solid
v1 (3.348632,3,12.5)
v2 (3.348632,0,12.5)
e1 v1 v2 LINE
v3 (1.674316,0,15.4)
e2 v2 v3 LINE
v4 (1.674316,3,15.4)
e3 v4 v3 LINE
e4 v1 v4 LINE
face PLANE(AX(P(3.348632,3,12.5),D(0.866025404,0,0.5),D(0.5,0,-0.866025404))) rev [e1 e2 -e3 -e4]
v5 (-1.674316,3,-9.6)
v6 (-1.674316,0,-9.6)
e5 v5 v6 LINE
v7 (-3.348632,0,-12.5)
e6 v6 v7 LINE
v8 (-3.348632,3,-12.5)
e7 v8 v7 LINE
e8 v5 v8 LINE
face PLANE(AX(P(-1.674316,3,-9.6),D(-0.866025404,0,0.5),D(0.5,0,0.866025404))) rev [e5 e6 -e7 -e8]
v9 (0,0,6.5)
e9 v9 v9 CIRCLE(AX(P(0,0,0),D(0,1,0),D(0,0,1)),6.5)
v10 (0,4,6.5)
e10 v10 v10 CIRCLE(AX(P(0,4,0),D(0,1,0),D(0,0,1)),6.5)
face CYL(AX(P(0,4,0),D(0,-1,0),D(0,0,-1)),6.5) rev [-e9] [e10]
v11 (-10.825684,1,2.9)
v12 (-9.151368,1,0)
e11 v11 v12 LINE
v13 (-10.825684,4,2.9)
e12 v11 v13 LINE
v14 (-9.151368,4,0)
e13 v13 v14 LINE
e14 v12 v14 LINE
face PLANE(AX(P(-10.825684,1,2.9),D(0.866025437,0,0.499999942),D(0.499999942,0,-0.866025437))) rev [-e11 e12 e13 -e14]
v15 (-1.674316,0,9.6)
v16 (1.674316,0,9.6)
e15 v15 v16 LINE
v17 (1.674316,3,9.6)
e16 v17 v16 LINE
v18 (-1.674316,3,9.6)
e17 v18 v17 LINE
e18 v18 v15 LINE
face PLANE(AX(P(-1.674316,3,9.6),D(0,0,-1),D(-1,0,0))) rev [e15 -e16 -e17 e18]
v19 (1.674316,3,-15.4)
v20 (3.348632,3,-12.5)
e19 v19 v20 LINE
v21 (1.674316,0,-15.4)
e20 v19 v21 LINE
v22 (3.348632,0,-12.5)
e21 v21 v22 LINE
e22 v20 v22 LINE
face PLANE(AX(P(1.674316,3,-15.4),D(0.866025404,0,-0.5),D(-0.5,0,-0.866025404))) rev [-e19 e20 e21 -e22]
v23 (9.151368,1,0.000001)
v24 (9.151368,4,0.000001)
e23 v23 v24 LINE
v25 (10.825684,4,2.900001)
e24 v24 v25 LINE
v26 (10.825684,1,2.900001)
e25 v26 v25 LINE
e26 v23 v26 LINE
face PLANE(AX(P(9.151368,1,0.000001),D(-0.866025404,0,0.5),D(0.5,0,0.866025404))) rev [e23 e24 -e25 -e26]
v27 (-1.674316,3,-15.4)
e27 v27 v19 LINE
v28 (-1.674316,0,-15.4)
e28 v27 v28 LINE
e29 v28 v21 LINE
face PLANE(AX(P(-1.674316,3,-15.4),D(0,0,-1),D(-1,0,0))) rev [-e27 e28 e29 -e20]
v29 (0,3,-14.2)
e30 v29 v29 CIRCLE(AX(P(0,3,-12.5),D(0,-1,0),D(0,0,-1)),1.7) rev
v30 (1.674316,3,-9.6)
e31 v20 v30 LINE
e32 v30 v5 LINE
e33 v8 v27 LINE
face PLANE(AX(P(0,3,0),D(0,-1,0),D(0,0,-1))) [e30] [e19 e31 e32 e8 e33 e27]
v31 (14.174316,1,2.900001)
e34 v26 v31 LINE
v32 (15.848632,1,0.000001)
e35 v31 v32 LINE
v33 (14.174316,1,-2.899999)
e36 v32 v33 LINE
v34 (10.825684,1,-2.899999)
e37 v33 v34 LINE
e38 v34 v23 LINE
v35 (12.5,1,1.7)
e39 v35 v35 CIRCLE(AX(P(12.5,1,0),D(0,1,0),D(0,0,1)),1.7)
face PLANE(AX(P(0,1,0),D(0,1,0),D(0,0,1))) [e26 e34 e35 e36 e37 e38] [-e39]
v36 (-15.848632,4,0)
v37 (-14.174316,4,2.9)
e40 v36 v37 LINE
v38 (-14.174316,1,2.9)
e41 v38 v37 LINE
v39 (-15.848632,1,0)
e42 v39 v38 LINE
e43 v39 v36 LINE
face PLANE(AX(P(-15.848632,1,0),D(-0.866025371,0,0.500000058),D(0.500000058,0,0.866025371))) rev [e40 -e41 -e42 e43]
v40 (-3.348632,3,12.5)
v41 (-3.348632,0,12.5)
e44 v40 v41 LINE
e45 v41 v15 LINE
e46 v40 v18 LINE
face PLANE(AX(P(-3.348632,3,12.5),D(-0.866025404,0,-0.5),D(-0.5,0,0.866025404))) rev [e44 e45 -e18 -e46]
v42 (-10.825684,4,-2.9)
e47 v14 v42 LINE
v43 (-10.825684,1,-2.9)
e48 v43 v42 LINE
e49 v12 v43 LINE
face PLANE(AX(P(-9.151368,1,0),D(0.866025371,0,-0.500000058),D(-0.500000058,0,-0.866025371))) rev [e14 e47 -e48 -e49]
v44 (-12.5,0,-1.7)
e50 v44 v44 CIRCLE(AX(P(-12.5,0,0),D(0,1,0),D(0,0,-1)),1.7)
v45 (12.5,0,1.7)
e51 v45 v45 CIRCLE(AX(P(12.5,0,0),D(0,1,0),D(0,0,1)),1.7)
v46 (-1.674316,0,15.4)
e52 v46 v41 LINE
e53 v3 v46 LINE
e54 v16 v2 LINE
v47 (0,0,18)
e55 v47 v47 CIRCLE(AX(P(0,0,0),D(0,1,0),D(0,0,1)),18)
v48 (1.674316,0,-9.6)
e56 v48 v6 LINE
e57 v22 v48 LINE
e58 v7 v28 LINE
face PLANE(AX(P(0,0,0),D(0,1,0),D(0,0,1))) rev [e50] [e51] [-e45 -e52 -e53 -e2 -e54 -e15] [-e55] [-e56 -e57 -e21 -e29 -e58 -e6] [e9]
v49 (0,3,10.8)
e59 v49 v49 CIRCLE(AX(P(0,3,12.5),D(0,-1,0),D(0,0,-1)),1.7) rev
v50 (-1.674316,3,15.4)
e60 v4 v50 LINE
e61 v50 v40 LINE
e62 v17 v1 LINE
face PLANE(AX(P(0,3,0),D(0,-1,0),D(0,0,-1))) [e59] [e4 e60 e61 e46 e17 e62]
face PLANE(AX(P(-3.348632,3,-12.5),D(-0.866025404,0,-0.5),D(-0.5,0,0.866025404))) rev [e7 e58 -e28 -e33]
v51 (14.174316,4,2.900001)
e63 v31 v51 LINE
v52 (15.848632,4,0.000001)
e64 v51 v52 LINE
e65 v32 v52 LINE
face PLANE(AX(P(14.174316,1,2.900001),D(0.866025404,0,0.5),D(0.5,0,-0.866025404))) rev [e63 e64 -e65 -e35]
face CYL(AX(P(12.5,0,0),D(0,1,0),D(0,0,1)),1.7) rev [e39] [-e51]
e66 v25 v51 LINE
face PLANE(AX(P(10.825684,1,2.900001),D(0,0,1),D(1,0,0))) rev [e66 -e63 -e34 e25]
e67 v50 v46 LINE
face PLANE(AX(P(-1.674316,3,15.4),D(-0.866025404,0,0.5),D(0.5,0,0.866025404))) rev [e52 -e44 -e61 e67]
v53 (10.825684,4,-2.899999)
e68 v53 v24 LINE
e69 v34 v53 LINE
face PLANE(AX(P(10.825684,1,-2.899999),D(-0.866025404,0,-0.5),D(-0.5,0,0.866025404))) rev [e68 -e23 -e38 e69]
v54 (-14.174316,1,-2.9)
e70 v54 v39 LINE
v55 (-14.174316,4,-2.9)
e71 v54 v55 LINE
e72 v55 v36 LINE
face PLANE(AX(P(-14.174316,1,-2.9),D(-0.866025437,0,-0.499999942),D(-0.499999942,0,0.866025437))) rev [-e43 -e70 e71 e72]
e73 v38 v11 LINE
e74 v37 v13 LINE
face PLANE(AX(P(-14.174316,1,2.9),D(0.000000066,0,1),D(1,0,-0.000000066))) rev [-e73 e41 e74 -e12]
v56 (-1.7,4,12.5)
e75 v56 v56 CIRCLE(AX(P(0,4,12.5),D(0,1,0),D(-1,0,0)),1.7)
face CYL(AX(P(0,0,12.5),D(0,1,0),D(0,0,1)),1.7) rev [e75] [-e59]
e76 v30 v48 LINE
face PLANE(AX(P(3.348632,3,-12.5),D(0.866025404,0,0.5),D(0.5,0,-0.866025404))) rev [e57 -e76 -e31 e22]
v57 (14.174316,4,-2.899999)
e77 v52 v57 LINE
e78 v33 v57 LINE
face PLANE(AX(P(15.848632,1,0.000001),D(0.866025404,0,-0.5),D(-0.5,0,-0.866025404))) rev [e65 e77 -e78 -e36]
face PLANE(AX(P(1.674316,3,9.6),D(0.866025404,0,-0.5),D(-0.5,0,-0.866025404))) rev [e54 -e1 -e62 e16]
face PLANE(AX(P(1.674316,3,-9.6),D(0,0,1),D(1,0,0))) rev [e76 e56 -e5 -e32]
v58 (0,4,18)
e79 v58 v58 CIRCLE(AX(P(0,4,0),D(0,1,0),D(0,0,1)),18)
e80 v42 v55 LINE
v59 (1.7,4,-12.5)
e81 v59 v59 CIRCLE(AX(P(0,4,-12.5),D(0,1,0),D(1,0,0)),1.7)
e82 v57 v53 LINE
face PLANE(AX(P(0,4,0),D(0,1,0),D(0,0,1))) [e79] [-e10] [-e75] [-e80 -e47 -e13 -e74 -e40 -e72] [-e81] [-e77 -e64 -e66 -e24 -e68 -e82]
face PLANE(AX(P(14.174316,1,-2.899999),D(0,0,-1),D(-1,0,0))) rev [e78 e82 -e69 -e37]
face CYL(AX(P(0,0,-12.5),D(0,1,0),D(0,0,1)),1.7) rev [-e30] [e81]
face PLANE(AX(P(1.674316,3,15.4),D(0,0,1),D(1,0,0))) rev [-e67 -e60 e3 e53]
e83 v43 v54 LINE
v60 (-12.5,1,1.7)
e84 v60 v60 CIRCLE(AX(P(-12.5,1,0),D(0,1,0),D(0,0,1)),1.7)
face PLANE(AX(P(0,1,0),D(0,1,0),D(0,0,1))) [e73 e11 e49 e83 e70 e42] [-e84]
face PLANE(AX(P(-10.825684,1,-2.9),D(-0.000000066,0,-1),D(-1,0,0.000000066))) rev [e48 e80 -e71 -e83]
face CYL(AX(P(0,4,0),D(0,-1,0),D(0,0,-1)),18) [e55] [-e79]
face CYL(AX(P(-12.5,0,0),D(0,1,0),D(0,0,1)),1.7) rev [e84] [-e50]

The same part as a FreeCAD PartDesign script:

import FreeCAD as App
import Part
import Sketcher
from FreeCAD import Vector
Q = App.Units.Quantity


def add_polygon(sketch, points):
    """Adds a closed chain of lines whose ends are joined by coincident constraints."""
    first, n = sketch.GeometryCount, len(points)
    for a, b in zip(points, points[1:] + points[:1]):
        sketch.addGeometry(Part.LineSegment(App.Vector(*a, 0), App.Vector(*b, 0)), False)
    for i in range(n):
        sketch.addConstraint(Sketcher.Constraint("Coincident", first + i, 2, first + (i + 1) % n, 1))

doc = App.newDocument("Part")
params = doc.addObject("Spreadsheet::Sheet", "Params")
for row, (alias, value) in enumerate([
    ("sketch1_diameter", "36 mm"),
    ("sketch1_diameter2", "13 mm"),
    ("pad1_length", "4 mm"),
    ("pocket1_length", "3 mm"),
    ("sketch3_diameter", "3.4 mm"),
    ("pocket2_length", "53.264022 mm"),
    ("pocket3_length", "3 mm"),
], start=1):
    params.set(f"A{row}", alias)
    params.set(f"B{row}", "=" + value)
    params.setAlias(f"B{row}", alias)

body = doc.addObject("PartDesign::Body", "Body")

# Sketch on XZ plane
sketch1 = body.newObject("Sketcher::SketchObject", "Sketch")
sketch1.AttachmentSupport = (doc.getObject("XZ_Plane"), [""])
sketch1.MapMode = "FlatFace"
sketch1.addGeometry(Part.Circle(Vector(0, 0, 0), Vector(0, 0, 1), 18), False)
sketch1.addGeometry(Part.Circle(Vector(0, 0, 0), Vector(0, 0, 1), 6), False)
sketch1.addConstraint(Sketcher.Constraint("Coincident", 0, 3, -1, 1))
sketch1.addConstraint(Sketcher.Constraint("Coincident", 1, 3, -1, 1))
sketch1.addConstraint(Sketcher.Constraint("Diameter", 0, 36.0))
sketch1.addConstraint(Sketcher.Constraint("Diameter", 1, 13.0))
sketch1.setExpression("Constraints[2]", "Params.sketch1_diameter")
sketch1.setExpression("Constraints[3]", "Params.sketch1_diameter2")
pad1 = body.newObject("PartDesign::Pad", "Pad")
pad1.Profile = sketch1
pad1.setExpression("Length", "Params.pad1_length")
pad1.Reversed = True

# Sketch on XZ plane
sketch2 = body.newObject("Sketcher::SketchObject", "Sketch001")
sketch2.AttachmentSupport = (doc.getObject("XZ_Plane"), [""])
sketch2.MapMode = "FlatFace"
sketch2.AttachmentOffset = App.Placement(Vector(0, 0, -4), App.Rotation())
add_polygon(sketch2, [(-15.8, 0), (-14.2, 2.9), (-10.8, 2.9), (-9.2, 0), (-10.8, -2.9), (-14.2, -2.9)])  # lines 0-5
add_polygon(sketch2, [(15.8, 0), (14.2, -2.9), (10.8, -2.9), (9.2, 0), (10.8, 2.9), (14.2, 2.9)])  # lines 6-11
sketch2.addConstraint(Sketcher.Constraint("Horizontal", 1))
sketch2.addConstraint(Sketcher.Constraint("Horizontal", 4))
sketch2.addConstraint(Sketcher.Constraint("Horizontal", 7))
sketch2.addConstraint(Sketcher.Constraint("Horizontal", 10))
sketch2.addConstraint(Sketcher.Constraint("Symmetric", 0, 2, 6, 2, -1, 1))
sketch2.addConstraint(Sketcher.Constraint("Symmetric", 2, 2, 8, 2, -1, 1))
sketch2.addConstraint(Sketcher.Constraint("Symmetric", 3, 2, 9, 2, -1, 1))
sketch2.addConstraint(Sketcher.Constraint("Symmetric", 5, 2, 11, 2, -1, 1))
sketch2.addConstraint(Sketcher.Constraint("Symmetric", 4, 2, 6, 2, -2))
sketch2.addConstraint(Sketcher.Constraint("PointOnObject", 2, 2, -1))
sketch2.addConstraint(Sketcher.Constraint("PointOnObject", 5, 2, -1))
sketch2.addConstraint(Sketcher.Constraint("Parallel", 0, 3))
sketch2.addConstraint(Sketcher.Constraint("Parallel", 2, 5))
sketch2.addConstraint(Sketcher.Constraint("Parallel", 5, 8))
sketch2.addConstraint(Sketcher.Constraint("Parallel", 8, 11))
sketch2.addConstraint(Sketcher.Constraint("Angle", 0, Q("59.999996 deg")))
sketch2.addConstraint(Sketcher.Constraint("DistanceX", 3, 2, 6, 2, 25.0))
sketch2.addConstraint(Sketcher.Constraint("DistanceY", -1, 1, 0, 2, 2.9))
sketch2.addConstraint(Sketcher.Constraint("DistanceX", 1, 1, 1, 2, 3.348632))
pocket1 = body.newObject("PartDesign::Pocket", "Pocket")
pocket1.Profile = sketch2
pocket1.setExpression("Length", "Params.pocket1_length")
pocket1.Reversed = True

# Sketch on XZ plane
sketch3 = body.newObject("Sketcher::SketchObject", "Sketch002")
sketch3.AttachmentSupport = (doc.getObject("XZ_Plane"), [""])
sketch3.MapMode = "FlatFace"
sketch3.AttachmentOffset = App.Placement(Vector(0, 0, -1), App.Rotation())
sketch3.addGeometry(Part.Circle(Vector(12.5, 0, 0), Vector(0, 0, 1), 1.7), False)
sketch3.addConstraint(Sketcher.Constraint("PointOnObject", 0, 3, -1))
sketch3.addConstraint(Sketcher.Constraint("Diameter", 0, 3.4))
sketch3.addConstraint(Sketcher.Constraint("DistanceX", -1, 1, 0, 3, 12.5))
sketch3.setExpression("Constraints[1]", "Params.sketch3_diameter")
pocket2 = body.newObject("PartDesign::Pocket", "Pocket001")
pocket2.Profile = sketch3
pocket2.setExpression("Length", "Params.pocket2_length")
pocket2.Midplane = True
doc.recompute()

polarpattern = body.newObject("PartDesign::PolarPattern", "PolarPattern")
polarpattern.Originals = [pocket2]
polarpattern.Axis = (doc.getObject("Y_Axis"), [""])
polarpattern.Angle = 360
polarpattern.Occurrences = 4
body.Tip = polarpattern

# Sketch on XZ plane
sketch4 = body.newObject("Sketcher::SketchObject", "Sketch003")
sketch4.AttachmentSupport = (doc.getObject("XZ_Plane"), [""])
sketch4.MapMode = "FlatFace"
add_polygon(sketch4, [(3.3, 12.5), (1.7, 15.4), (-1.7, 15.4), (-3.3, 12.5), (-1.7, 9.6), (1.7, 9.6)])  # lines 0-5
add_polygon(sketch4, [(-3.3, -12.5), (-1.7, -15.4), (1.7, -15.4), (3.3, -12.5), (1.7, -9.6), (-1.7, -9.6)])  # lines 6-11
sketch4.addConstraint(Sketcher.Constraint("Horizontal", 1))
sketch4.addConstraint(Sketcher.Constraint("Horizontal", 4))
sketch4.addConstraint(Sketcher.Constraint("Horizontal", 7))
sketch4.addConstraint(Sketcher.Constraint("Horizontal", 10))
sketch4.addConstraint(Sketcher.Constraint("Symmetric", 0, 2, 6, 2, -1, 1))
sketch4.addConstraint(Sketcher.Constraint("Symmetric", 2, 2, 8, 2, -1, 1))
sketch4.addConstraint(Sketcher.Constraint("Symmetric", 3, 2, 9, 2, -1, 1))
sketch4.addConstraint(Sketcher.Constraint("Symmetric", 5, 2, 11, 2, -1, 1))
sketch4.addConstraint(Sketcher.Constraint("Symmetric", 2, 2, 5, 2, -2))
sketch4.addConstraint(Sketcher.Constraint("Parallel", 0, 3))
sketch4.addConstraint(Sketcher.Constraint("Parallel", 2, 5))
sketch4.addConstraint(Sketcher.Constraint("Parallel", 5, 8))
sketch4.addConstraint(Sketcher.Constraint("Parallel", 8, 11))
sketch4.addConstraint(Sketcher.Constraint("Vertical", 1, 2, 3, 2))
sketch4.addConstraint(Sketcher.Constraint("Vertical", 0, 2, 4, 2))
sketch4.addConstraint(Sketcher.Constraint("Angle", 0, Q("120 deg")))
sketch4.addConstraint(Sketcher.Constraint("DistanceY", 6, 2, 3, 2, 25.0))
sketch4.addConstraint(Sketcher.Constraint("DistanceY", -1, 1, 0, 2, 15.4))
sketch4.addConstraint(Sketcher.Constraint("DistanceX", 1, 2, 1, 1, 3.348632))
pocket3 = body.newObject("PartDesign::Pocket", "Pocket002")
pocket3.Profile = sketch4
pocket3.setExpression("Length", "Params.pocket3_length")

doc.recompute()
